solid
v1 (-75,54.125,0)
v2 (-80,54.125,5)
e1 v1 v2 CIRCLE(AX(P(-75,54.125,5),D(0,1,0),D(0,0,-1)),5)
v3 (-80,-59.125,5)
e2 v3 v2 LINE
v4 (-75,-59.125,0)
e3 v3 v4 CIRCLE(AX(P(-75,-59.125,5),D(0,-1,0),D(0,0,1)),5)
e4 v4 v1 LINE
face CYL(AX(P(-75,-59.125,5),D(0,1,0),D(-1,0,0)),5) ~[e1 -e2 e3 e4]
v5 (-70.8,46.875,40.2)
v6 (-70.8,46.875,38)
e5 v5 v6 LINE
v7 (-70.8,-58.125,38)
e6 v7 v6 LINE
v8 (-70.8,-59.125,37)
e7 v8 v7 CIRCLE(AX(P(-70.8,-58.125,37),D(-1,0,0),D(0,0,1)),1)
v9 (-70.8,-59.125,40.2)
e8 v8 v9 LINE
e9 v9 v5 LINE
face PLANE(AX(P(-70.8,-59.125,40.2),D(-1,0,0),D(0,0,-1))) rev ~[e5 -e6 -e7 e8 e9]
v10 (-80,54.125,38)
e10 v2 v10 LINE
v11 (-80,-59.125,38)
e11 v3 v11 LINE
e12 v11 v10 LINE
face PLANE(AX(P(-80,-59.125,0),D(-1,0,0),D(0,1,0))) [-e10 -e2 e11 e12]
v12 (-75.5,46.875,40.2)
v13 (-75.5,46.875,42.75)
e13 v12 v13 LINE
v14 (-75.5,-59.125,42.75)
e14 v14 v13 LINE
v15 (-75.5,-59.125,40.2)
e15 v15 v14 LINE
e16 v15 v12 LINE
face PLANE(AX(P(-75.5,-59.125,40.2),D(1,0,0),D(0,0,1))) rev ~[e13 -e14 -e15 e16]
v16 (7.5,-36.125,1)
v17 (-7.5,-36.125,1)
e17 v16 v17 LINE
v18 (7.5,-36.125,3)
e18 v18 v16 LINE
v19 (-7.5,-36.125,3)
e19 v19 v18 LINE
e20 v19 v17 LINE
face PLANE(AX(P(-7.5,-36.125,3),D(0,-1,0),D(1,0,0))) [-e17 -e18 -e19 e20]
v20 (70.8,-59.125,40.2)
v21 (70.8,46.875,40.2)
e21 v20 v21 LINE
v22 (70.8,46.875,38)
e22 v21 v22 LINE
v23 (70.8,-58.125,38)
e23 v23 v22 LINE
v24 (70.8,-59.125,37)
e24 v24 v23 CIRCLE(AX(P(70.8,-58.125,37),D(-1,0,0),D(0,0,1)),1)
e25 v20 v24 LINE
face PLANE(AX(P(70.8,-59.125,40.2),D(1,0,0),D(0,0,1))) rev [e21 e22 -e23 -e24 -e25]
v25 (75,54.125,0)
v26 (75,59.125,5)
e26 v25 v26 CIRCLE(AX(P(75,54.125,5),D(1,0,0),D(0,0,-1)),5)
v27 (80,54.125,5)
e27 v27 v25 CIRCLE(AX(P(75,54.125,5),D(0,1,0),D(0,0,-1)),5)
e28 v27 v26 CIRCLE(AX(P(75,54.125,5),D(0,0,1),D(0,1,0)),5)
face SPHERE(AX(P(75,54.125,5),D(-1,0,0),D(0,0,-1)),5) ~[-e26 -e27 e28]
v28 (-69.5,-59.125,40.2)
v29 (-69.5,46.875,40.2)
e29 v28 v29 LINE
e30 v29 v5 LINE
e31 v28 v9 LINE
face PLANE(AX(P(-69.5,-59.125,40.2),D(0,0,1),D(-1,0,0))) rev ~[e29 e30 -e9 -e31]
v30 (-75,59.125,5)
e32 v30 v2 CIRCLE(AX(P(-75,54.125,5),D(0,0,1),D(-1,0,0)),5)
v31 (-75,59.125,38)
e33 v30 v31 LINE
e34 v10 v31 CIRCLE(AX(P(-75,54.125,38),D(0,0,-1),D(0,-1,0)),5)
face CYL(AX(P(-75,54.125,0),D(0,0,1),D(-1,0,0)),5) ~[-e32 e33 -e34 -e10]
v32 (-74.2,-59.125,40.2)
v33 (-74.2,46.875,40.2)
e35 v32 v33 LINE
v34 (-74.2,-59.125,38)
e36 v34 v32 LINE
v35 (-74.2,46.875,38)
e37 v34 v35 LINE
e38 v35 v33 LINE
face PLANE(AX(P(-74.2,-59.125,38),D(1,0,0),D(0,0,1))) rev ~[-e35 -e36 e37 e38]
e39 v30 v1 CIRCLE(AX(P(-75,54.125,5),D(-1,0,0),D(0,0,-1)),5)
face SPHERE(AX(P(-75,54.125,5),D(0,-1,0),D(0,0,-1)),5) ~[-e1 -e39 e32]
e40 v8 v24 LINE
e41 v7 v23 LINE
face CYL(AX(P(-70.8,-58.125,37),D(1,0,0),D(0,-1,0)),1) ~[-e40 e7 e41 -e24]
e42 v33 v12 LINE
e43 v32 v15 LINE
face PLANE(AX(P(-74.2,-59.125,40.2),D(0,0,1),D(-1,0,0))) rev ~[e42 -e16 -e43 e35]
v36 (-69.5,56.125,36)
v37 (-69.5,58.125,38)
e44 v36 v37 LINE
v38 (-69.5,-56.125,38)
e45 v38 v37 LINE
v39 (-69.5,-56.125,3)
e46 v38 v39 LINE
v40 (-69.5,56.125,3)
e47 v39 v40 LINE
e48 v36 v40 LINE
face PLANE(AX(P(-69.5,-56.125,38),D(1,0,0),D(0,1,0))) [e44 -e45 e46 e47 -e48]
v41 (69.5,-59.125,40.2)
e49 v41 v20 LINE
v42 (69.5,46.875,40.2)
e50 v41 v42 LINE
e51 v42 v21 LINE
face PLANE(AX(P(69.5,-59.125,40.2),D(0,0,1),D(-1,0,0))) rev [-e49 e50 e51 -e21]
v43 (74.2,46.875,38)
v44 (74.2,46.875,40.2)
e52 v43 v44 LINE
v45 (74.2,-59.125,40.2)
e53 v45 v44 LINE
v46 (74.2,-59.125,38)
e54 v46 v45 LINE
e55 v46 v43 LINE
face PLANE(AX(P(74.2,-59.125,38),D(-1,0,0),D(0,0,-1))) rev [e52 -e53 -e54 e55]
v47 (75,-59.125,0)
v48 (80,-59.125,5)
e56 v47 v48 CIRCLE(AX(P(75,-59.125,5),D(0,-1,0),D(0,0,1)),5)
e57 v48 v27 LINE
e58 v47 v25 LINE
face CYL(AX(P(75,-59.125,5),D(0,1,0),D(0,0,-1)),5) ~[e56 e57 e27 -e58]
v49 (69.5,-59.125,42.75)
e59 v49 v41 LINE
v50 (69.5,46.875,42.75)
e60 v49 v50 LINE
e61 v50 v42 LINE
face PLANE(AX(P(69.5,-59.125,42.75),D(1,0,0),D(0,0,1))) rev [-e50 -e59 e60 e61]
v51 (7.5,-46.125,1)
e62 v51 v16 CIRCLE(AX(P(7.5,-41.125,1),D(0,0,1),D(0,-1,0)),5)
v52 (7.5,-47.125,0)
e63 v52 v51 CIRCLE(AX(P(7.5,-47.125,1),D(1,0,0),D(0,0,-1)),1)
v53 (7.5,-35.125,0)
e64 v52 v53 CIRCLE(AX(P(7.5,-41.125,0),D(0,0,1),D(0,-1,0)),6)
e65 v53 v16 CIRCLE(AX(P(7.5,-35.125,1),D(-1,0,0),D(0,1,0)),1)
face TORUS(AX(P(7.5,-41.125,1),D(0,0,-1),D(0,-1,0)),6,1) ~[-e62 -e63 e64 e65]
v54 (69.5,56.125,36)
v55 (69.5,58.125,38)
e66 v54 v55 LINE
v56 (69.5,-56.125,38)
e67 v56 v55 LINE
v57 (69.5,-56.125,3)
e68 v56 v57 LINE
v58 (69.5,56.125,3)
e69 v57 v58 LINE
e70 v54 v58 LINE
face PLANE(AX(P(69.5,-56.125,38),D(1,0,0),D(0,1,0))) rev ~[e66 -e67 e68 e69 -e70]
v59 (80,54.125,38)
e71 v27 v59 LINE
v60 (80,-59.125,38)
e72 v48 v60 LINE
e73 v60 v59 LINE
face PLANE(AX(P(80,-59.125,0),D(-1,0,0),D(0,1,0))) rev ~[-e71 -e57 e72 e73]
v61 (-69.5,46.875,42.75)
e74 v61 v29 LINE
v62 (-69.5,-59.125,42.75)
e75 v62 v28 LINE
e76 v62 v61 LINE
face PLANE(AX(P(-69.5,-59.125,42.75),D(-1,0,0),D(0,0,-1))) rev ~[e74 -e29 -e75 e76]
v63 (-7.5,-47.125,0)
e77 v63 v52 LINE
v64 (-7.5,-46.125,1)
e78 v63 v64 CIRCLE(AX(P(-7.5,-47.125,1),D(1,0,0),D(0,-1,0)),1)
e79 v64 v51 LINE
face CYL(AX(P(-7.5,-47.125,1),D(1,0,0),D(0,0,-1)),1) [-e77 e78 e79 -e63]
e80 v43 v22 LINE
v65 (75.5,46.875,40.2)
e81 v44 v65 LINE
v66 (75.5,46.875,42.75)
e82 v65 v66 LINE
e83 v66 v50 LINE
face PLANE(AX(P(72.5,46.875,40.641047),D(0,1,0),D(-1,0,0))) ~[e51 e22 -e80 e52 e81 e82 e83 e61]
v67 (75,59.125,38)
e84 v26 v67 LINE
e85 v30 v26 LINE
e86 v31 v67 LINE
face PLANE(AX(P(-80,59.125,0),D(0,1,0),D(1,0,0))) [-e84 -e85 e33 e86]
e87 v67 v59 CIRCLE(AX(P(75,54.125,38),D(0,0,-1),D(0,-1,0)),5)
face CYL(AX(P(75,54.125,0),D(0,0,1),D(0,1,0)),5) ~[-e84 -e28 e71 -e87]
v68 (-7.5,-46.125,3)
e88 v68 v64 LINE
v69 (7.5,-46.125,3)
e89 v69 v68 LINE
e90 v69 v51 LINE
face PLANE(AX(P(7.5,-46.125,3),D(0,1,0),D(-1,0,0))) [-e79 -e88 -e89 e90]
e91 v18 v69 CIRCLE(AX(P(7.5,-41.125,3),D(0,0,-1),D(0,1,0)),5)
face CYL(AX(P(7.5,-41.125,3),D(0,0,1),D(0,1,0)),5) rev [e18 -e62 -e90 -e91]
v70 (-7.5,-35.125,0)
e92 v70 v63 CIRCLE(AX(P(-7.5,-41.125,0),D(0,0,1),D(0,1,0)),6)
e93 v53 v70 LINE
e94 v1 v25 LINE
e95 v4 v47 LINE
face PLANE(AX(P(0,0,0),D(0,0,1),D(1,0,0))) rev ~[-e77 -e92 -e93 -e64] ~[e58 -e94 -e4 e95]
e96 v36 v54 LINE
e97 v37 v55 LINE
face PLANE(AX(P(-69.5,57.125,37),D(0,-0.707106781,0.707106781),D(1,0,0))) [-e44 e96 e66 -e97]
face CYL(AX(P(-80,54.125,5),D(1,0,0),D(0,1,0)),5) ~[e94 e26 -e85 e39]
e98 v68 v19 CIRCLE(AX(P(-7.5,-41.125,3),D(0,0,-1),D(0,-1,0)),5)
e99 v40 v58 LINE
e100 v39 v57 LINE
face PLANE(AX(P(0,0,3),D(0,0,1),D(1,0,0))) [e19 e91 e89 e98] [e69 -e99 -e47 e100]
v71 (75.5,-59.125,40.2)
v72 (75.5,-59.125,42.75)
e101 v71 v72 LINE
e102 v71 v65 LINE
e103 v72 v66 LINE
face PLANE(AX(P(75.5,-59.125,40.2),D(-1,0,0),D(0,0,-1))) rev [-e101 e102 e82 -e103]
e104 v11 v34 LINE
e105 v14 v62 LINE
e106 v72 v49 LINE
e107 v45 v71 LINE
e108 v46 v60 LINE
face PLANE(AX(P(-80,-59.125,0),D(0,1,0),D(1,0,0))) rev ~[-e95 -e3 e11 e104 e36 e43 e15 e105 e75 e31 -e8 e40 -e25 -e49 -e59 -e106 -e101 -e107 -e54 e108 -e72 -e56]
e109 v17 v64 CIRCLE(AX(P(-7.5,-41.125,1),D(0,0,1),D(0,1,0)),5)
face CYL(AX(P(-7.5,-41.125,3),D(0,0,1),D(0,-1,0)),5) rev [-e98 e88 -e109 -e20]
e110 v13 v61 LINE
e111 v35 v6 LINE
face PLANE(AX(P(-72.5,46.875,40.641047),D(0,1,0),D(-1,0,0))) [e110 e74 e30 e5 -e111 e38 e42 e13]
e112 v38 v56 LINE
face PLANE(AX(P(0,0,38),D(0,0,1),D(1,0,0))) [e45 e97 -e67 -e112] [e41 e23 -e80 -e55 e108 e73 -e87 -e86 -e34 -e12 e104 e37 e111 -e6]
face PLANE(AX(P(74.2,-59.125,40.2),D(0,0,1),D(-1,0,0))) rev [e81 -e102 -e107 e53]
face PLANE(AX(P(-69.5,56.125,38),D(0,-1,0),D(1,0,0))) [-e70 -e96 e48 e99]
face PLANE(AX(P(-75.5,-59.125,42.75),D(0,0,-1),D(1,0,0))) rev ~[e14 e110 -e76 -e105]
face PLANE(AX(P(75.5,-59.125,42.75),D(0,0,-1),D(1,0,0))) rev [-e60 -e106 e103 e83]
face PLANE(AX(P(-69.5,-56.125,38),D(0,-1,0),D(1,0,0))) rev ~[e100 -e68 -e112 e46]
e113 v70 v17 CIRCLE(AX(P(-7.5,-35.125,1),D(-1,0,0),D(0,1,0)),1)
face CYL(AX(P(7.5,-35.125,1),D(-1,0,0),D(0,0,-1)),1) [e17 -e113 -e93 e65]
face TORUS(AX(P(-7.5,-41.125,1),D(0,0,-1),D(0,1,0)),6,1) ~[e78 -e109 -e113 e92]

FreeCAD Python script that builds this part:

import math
import FreeCAD as App
import Part
import Sketcher
from FreeCAD import Vector


def edges_at(feature, points):
    """Names of the edges that pass closest to the given points."""
    edges = feature.Shape.Edges
    near = lambda p: min(range(len(edges)), key=lambda i: edges[i].distToShape(Part.Vertex(*p))[0])
    return sorted({f"Edge{near(p) + 1}" for p in points})

doc = App.newDocument("Part")
params = doc.addObject("Spreadsheet::Sheet", "Params")
for row, (alias, value) in enumerate([
    ("sketch1_width", "160 mm"),
    ("sketch1_height", "118.25 mm"),
    ("pad1_length", "38 mm"),
    ("sketch2_width", "6 mm"),
    ("sketch2_width2", "3.4 mm"),
    ("sketch2_height", "2.2 mm"),
    ("sketch2_height2", "2.55 mm"),
    ("pad2_length", "106 mm"),
    ("fillet_radius", "5 mm"),
    ("sketch3_width", "139 mm"),
    ("sketch3_height", "112.25 mm"),
    ("pocket1_length", "35 mm"),
    ("sketch4_radius", "5 mm"),
    ("sketch4_width", "15 mm"),
    ("pocket2_length", "25 mm"),
    ("fillet2_radius", "1 mm"),
    ("chamfer_size", "2 mm"),
], start=1):
    params.set(f"A{row}", alias)
    params.set(f"B{row}", "=" + value)
    params.setAlias(f"B{row}", alias)

body = doc.addObject("PartDesign::Body", "Body")

sketch1 = body.newObject("Sketcher::SketchObject", "Sketch")
sketch1.AttachmentSupport = (doc.getObject("XY_Plane"), [""])
sketch1.MapMode = "FlatFace"
sketch1.addGeometry(Part.LineSegment(Vector(-80, 59, 0), Vector(-80, -59, 0)), False)
sketch1.addGeometry(Part.LineSegment(Vector(-80, -59, 0), Vector(80, -59, 0)), False)
sketch1.addGeometry(Part.LineSegment(Vector(80, -59, 0), Vector(80, 59, 0)), False)
sketch1.addGeometry(Part.LineSegment(Vector(80, 59, 0), Vector(-80, 59, 0)), False)
sketch1.addConstraint(Sketcher.Constraint("Coincident", 0, 2, 1, 1))
sketch1.addConstraint(Sketcher.Constraint("Coincident", 1, 2, 2, 1))
sketch1.addConstraint(Sketcher.Constraint("Coincident", 2, 2, 3, 1))
sketch1.addConstraint(Sketcher.Constraint("Coincident", 3, 2, 0, 1))
sketch1.addConstraint(Sketcher.Constraint("Vertical", 0))
sketch1.addConstraint(Sketcher.Constraint("Horizontal", 1))
sketch1.addConstraint(Sketcher.Constraint("Vertical", 2))
sketch1.addConstraint(Sketcher.Constraint("Horizontal", 3))
sketch1.addConstraint(Sketcher.Constraint("Symmetric", 0, 2, 2, 2, -1, 1))
sketch1.addConstraint(Sketcher.Constraint("DistanceX", 1, 1, 1, 2, 160.0))
sketch1.addConstraint(Sketcher.Constraint("DistanceY", 0, 2, 0, 1, 118.25))
sketch1.setExpression("Constraints[9]", "Params.sketch1_width")
sketch1.setExpression("Constraints[10]", "Params.sketch1_height")
pad1 = body.newObject("PartDesign::Pad", "Pad")
pad1.Profile = sketch1
pad1.setExpression("Length", "Params.pad1_length")

sketch2 = body.newObject("Sketcher::SketchObject", "Sketch001")
sketch2.AttachmentSupport = (doc.getObject("XZ_Plane"), [""])
sketch2.MapMode = "FlatFace"
sketch2.AttachmentOffset = App.Placement(Vector(0, 0, 59.125), App.Rotation())
sketch2.addGeometry(Part.LineSegment(Vector(-74.2, 38, 0), Vector(-70.8, 38, 0)), False)
sketch2.addGeometry(Part.LineSegment(Vector(-70.8, 38, 0), Vector(-70.8, 40.2, 0)), False)
sketch2.addGeometry(Part.LineSegment(Vector(-70.8, 40.2, 0), Vector(-69.5, 40.2, 0)), False)
sketch2.addGeometry(Part.LineSegment(Vector(-69.5, 40.2, 0), Vector(-69.5, 42.8, 0)), False)
sketch2.addGeometry(Part.LineSegment(Vector(-69.5, 42.8, 0), Vector(-75.5, 42.8, 0)), False)
sketch2.addGeometry(Part.LineSegment(Vector(-75.5, 42.8, 0), Vector(-75.5, 40.2, 0)), False)
sketch2.addGeometry(Part.LineSegment(Vector(-75.5, 40.2, 0), Vector(-74.2, 40.2, 0)), False)
sketch2.addGeometry(Part.LineSegment(Vector(-74.2, 40.2, 0), Vector(-74.2, 38, 0)), False)
sketch2.addConstraint(Sketcher.Constraint("Coincident", 0, 2, 1, 1))
sketch2.addConstraint(Sketcher.Constraint("Coincident", 1, 2, 2, 1))
sketch2.addConstraint(Sketcher.Constraint("Coincident", 2, 2, 3, 1))
sketch2.addConstraint(Sketcher.Constraint("Coincident", 3, 2, 4, 1))
sketch2.addConstraint(Sketcher.Constraint("Coincident", 4, 2, 5, 1))
sketch2.addConstraint(Sketcher.Constraint("Coincident", 5, 2, 6, 1))
sketch2.addConstraint(Sketcher.Constraint("Coincident", 6, 2, 7, 1))
sketch2.addConstraint(Sketcher.Constraint("Coincident", 7, 2, 0, 1))
sketch2.addConstraint(Sketcher.Constraint("Horizontal", 0))
sketch2.addConstraint(Sketcher.Constraint("Vertical", 1))
sketch2.addConstraint(Sketcher.Constraint("Horizontal", 2))
sketch2.addConstraint(Sketcher.Constraint("Vertical", 3))
sketch2.addConstraint(Sketcher.Constraint("Horizontal", 4))
sketch2.addConstraint(Sketcher.Constraint("Vertical", 5))
sketch2.addConstraint(Sketcher.Constraint("Horizontal", 6))
sketch2.addConstraint(Sketcher.Constraint("Vertical", 7))
sketch2.addConstraint(Sketcher.Constraint("Horizontal", 2, 2, 5, 2))
sketch2.addConstraint(Sketcher.Constraint("Equal", 2, 6))
sketch2.addConstraint(Sketcher.Constraint("DistanceX", 4, 2, 4, 1, 6.0))
sketch2.addConstraint(Sketcher.Constraint("DistanceX", 0, 1, 0, 2, 3.4))
sketch2.addConstraint(Sketcher.Constraint("DistanceY", 1, 1, 1, 2, 2.2))
sketch2.addConstraint(Sketcher.Constraint("DistanceY", -1, 1, 0, 2, 38.0))
sketch2.addConstraint(Sketcher.Constraint("DistanceY", 3, 1, 3, 2, 2.55))
sketch2.addConstraint(Sketcher.Constraint("DistanceX", 0, 2, -1, 1, 70.8))
sketch2.setExpression("Constraints[18]", "Params.sketch2_width")
sketch2.setExpression("Constraints[19]", "Params.sketch2_width2")
sketch2.setExpression("Constraints[20]", "Params.sketch2_height")
sketch2.setExpression("Constraints[22]", "Params.sketch2_height2")
pad2 = body.newObject("PartDesign::Pad", "Pad001")
pad2.Profile = sketch2
pad2.setExpression("Length", "Params.pad2_length")
pad2.Reversed = True
doc.recompute()

mirrored = body.newObject("PartDesign::Mirrored", "Mirrored")
mirrored.Originals = [pad2]
mirrored.MirrorPlane = (doc.getObject("YZ_Plane"), [""])
body.Tip = mirrored
doc.recompute()

fillet = body.newObject("PartDesign::Fillet", "Fillet")
fillet.Base = (mirrored, edges_at(mirrored, [
    (-80, 0, 0),
    (0, 59.125, 0),
    (80, 0, 0),
    (-80, 59.125, 19),
    (80, 59.125, 19),
]))
fillet.setExpression("Radius", "Params.fillet_radius")

sketch3 = body.newObject("Sketcher::SketchObject", "Sketch002")
sketch3.AttachmentSupport = (doc.getObject("XY_Plane"), [""])
sketch3.MapMode = "FlatFace"
sketch3.AttachmentOffset = App.Placement(Vector(0, 0, 38), App.Rotation())
sketch3.addGeometry(Part.LineSegment(Vector(-70, 56, 0), Vector(-70, -56, 0)), False)
sketch3.addGeometry(Part.LineSegment(Vector(-70, -56, 0), Vector(70, -56, 0)), False)
sketch3.addGeometry(Part.LineSegment(Vector(70, -56, 0), Vector(70, 56, 0)), False)
sketch3.addGeometry(Part.LineSegment(Vector(70, 56, 0), Vector(-70, 56, 0)), False)
sketch3.addConstraint(Sketcher.Constraint("Coincident", 0, 2, 1, 1))
sketch3.addConstraint(Sketcher.Constraint("Coincident", 1, 2, 2, 1))
sketch3.addConstraint(Sketcher.Constraint("Coincident", 2, 2, 3, 1))
sketch3.addConstraint(Sketcher.Constraint("Coincident", 3, 2, 0, 1))
sketch3.addConstraint(Sketcher.Constraint("Vertical", 0))
sketch3.addConstraint(Sketcher.Constraint("Horizontal", 1))
sketch3.addConstraint(Sketcher.Constraint("Vertical", 2))
sketch3.addConstraint(Sketcher.Constraint("Horizontal", 3))
sketch3.addConstraint(Sketcher.Constraint("Symmetric", 0, 2, 2, 2, -1, 1))
sketch3.addConstraint(Sketcher.Constraint("DistanceX", 1, 1, 1, 2, 139.0))
sketch3.addConstraint(Sketcher.Constraint("DistanceY", 0, 2, 0, 1, 112.25))
sketch3.setExpression("Constraints[9]", "Params.sketch3_width")
sketch3.setExpression("Constraints[10]", "Params.sketch3_height")
pocket1 = body.newObject("PartDesign::Pocket", "Pocket")
pocket1.Profile = sketch3
pocket1.setExpression("Length", "Params.pocket1_length")

sketch4 = body.newObject("Sketcher::SketchObject", "Sketch003")
sketch4.AttachmentSupport = (doc.getObject("XY_Plane"), [""])
sketch4.MapMode = "FlatFace"
sketch4.AttachmentOffset = App.Placement(Vector(0, 0, 3), App.Rotation())
sketch4.addGeometry(Part.LineSegment(Vector(8, -36, 0), Vector(-8, -36, 0)), False)
sketch4.addGeometry(Part.ArcOfCircle(Part.Circle(Vector(-8, -41, 0), Vector(0, 0, 1), 5), math.radians(90), math.radians(270)), False)
sketch4.addGeometry(Part.LineSegment(Vector(-8, -46, 0), Vector(8, -46, 0)), False)
sketch4.addGeometry(Part.ArcOfCircle(Part.Circle(Vector(8, -41, 0), Vector(0, 0, 1), 5), math.radians(-90), math.radians(90)), False)
sketch4.addConstraint(Sketcher.Constraint("Tangent", 0, 2, 1, 1))
sketch4.addConstraint(Sketcher.Constraint("Tangent", 1, 2, 2, 1))
sketch4.addConstraint(Sketcher.Constraint("Tangent", 2, 2, 3, 1))
sketch4.addConstraint(Sketcher.Constraint("Tangent", 3, 2, 0, 1))
sketch4.addConstraint(Sketcher.Constraint("Horizontal", 0))
sketch4.addConstraint(Sketcher.Constraint("Horizontal", 2))
sketch4.addConstraint(Sketcher.Constraint("Radius", 1, 5.0))
sketch4.addConstraint(Sketcher.Constraint("DistanceX", 0, 2, 0, 1, 15.0))
sketch4.addConstraint(Sketcher.Constraint("DistanceX", 1, 3, -1, 1, 7.5))
sketch4.addConstraint(Sketcher.Constraint("DistanceY", 1, 3, -1, 1, 41.125))
sketch4.setExpression("Constraints[6]", "Params.sketch4_radius")
sketch4.setExpression("Constraints[7]", "Params.sketch4_width")
pocket2 = body.newObject("PartDesign::Pocket", "Pocket001")
pocket2.Profile = sketch4
pocket2.setExpression("Length", "Params.pocket2_length")
doc.recompute()

fillet2 = body.newObject("PartDesign::Fillet", "Fillet001")
fillet2.Base = (pocket2, edges_at(pocket2, [
    (-12.5, -41.125, 0),
    (0, -36.125, 0),
    (12.5, -41.125, 0),
    (0, -46.125, 0),
    (0, -59.125, 38),
]))
fillet2.setExpression("Radius", "Params.fillet2_radius")
doc.recompute()

chamfer = body.newObject("PartDesign::Chamfer", "Chamfer")
chamfer.Base = (fillet2, edges_at(fillet2, [(0, 56.125, 38)]))
chamfer.setExpression("Size", "Params.chamfer_size")

doc.recompute()
